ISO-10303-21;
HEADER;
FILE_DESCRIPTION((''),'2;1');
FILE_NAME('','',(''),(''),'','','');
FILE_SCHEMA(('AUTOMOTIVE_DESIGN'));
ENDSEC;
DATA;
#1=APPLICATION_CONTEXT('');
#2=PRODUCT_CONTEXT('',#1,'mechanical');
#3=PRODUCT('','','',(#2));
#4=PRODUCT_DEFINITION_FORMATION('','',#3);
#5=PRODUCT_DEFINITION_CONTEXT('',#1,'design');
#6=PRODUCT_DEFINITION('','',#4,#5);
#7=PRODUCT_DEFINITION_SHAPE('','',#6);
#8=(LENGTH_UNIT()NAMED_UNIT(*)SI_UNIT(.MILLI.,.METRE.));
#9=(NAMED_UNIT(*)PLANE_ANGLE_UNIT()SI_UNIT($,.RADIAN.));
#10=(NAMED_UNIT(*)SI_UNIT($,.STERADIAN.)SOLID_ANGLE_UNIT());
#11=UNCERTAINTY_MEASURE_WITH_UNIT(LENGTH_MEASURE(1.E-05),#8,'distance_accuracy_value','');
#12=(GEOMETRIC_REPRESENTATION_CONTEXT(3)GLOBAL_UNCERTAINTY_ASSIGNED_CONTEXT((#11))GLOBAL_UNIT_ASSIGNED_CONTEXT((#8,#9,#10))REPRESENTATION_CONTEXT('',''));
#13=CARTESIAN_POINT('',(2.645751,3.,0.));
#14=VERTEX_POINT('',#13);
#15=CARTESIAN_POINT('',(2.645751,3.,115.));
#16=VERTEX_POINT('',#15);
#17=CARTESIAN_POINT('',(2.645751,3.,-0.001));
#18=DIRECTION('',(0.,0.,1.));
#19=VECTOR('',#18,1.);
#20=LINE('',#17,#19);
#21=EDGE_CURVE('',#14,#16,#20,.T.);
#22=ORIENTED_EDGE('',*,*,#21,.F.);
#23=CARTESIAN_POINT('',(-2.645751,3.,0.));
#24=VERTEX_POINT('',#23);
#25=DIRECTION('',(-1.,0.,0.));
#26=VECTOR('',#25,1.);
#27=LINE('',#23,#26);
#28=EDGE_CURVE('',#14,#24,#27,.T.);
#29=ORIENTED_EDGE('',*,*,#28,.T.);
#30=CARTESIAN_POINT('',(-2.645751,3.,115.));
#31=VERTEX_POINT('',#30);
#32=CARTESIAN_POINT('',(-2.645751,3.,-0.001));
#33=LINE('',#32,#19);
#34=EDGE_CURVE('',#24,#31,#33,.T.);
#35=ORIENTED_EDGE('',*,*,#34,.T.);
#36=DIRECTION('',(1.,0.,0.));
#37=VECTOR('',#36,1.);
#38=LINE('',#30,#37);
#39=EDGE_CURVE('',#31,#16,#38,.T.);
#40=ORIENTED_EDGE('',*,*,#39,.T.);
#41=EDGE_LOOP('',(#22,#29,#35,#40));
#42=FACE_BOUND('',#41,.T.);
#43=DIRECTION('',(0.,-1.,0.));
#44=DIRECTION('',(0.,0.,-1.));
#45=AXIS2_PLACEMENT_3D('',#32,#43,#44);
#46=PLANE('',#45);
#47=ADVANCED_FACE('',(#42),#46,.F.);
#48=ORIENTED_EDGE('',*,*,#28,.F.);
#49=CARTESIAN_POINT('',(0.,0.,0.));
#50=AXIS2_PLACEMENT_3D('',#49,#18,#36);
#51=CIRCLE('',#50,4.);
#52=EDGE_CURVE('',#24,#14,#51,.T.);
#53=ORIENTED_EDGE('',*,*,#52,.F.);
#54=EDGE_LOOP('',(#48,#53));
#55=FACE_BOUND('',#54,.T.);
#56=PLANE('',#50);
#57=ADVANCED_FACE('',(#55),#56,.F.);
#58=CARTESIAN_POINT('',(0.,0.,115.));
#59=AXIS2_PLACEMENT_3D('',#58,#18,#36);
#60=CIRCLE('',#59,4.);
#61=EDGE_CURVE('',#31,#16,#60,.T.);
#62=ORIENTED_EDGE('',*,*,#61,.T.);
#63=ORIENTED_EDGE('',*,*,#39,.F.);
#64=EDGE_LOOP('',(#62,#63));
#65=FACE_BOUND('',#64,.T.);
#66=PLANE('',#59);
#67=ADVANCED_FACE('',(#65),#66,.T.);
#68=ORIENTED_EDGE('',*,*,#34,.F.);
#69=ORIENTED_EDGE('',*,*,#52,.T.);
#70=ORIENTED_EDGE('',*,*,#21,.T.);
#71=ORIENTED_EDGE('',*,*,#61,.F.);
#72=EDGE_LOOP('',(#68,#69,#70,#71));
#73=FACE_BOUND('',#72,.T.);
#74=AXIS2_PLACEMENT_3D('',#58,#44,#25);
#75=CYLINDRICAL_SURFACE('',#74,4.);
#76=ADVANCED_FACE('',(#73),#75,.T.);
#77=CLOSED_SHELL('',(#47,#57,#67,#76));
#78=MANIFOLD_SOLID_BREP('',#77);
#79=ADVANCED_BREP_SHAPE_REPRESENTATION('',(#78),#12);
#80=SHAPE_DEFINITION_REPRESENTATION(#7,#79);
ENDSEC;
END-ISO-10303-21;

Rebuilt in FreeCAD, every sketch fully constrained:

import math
import FreeCAD as App
import Part
import Sketcher
from FreeCAD import Vector
Q = App.Units.Quantity

doc = App.newDocument("Part")
body = doc.addObject("PartDesign::Body", "Body")

# Sketch on XY plane
sketch1 = body.newObject("Sketcher::SketchObject", "Sketch")
sketch1.AttachmentSupport = (doc.getObject("XY_Plane"), [""])
sketch1.MapMode = "FlatFace"
sketch1.addGeometry(Part.Circle(Vector(0, 0, 0), Vector(0, 0, 1), 4), False)
sketch1.addConstraint(Sketcher.Constraint("Coincident", 0, 3, -1, 1))
sketch1.addConstraint(Sketcher.Constraint("Diameter", 0, Q("8 mm")))
pad1 = body.newObject("PartDesign::Pad", "Pad")
pad1.Profile = sketch1
pad1.Length = 115

# Sketch on XY plane
sketch2 = body.newObject("Sketcher::SketchObject", "Sketch001")
sketch2.AttachmentSupport = (doc.getObject("XY_Plane"), [""])
sketch2.MapMode = "FlatFace"
sketch2.AttachmentOffset = App.Placement(Vector(0, 0, 115), App.Rotation())
sketch2.addGeometry(Part.LineSegment(Vector(-2.6, 3, 0), Vector(2.6, 3, 0)), False)
sketch2.addGeometry(Part.ArcOfCircle(Part.Circle(Vector(0, 0, 0), Vector(0, 0, 1), 4), math.radians(49), math.radians(131)), False)
sketch2.addConstraint(Sketcher.Constraint("Coincident", 0, 1, 1, 2))
sketch2.addConstraint(Sketcher.Constraint("Coincident", 1, 1, 0, 2))
sketch2.addConstraint(Sketcher.Constraint("Horizontal", 0))
sketch2.addConstraint(Sketcher.Constraint("Coincident", 1, 3, -1, 1))
sketch2.addConstraint(Sketcher.Constraint("Radius", 1, Q("4 mm")))
sketch2.addConstraint(Sketcher.Constraint("DistanceY", -1, 1, 0, 1, Q("3 mm")))
pocket1 = body.newObject("PartDesign::Pocket", "Pocket")
pocket1.Profile = sketch2
pocket1.Type = "UpToFirst"

doc.recompute()
